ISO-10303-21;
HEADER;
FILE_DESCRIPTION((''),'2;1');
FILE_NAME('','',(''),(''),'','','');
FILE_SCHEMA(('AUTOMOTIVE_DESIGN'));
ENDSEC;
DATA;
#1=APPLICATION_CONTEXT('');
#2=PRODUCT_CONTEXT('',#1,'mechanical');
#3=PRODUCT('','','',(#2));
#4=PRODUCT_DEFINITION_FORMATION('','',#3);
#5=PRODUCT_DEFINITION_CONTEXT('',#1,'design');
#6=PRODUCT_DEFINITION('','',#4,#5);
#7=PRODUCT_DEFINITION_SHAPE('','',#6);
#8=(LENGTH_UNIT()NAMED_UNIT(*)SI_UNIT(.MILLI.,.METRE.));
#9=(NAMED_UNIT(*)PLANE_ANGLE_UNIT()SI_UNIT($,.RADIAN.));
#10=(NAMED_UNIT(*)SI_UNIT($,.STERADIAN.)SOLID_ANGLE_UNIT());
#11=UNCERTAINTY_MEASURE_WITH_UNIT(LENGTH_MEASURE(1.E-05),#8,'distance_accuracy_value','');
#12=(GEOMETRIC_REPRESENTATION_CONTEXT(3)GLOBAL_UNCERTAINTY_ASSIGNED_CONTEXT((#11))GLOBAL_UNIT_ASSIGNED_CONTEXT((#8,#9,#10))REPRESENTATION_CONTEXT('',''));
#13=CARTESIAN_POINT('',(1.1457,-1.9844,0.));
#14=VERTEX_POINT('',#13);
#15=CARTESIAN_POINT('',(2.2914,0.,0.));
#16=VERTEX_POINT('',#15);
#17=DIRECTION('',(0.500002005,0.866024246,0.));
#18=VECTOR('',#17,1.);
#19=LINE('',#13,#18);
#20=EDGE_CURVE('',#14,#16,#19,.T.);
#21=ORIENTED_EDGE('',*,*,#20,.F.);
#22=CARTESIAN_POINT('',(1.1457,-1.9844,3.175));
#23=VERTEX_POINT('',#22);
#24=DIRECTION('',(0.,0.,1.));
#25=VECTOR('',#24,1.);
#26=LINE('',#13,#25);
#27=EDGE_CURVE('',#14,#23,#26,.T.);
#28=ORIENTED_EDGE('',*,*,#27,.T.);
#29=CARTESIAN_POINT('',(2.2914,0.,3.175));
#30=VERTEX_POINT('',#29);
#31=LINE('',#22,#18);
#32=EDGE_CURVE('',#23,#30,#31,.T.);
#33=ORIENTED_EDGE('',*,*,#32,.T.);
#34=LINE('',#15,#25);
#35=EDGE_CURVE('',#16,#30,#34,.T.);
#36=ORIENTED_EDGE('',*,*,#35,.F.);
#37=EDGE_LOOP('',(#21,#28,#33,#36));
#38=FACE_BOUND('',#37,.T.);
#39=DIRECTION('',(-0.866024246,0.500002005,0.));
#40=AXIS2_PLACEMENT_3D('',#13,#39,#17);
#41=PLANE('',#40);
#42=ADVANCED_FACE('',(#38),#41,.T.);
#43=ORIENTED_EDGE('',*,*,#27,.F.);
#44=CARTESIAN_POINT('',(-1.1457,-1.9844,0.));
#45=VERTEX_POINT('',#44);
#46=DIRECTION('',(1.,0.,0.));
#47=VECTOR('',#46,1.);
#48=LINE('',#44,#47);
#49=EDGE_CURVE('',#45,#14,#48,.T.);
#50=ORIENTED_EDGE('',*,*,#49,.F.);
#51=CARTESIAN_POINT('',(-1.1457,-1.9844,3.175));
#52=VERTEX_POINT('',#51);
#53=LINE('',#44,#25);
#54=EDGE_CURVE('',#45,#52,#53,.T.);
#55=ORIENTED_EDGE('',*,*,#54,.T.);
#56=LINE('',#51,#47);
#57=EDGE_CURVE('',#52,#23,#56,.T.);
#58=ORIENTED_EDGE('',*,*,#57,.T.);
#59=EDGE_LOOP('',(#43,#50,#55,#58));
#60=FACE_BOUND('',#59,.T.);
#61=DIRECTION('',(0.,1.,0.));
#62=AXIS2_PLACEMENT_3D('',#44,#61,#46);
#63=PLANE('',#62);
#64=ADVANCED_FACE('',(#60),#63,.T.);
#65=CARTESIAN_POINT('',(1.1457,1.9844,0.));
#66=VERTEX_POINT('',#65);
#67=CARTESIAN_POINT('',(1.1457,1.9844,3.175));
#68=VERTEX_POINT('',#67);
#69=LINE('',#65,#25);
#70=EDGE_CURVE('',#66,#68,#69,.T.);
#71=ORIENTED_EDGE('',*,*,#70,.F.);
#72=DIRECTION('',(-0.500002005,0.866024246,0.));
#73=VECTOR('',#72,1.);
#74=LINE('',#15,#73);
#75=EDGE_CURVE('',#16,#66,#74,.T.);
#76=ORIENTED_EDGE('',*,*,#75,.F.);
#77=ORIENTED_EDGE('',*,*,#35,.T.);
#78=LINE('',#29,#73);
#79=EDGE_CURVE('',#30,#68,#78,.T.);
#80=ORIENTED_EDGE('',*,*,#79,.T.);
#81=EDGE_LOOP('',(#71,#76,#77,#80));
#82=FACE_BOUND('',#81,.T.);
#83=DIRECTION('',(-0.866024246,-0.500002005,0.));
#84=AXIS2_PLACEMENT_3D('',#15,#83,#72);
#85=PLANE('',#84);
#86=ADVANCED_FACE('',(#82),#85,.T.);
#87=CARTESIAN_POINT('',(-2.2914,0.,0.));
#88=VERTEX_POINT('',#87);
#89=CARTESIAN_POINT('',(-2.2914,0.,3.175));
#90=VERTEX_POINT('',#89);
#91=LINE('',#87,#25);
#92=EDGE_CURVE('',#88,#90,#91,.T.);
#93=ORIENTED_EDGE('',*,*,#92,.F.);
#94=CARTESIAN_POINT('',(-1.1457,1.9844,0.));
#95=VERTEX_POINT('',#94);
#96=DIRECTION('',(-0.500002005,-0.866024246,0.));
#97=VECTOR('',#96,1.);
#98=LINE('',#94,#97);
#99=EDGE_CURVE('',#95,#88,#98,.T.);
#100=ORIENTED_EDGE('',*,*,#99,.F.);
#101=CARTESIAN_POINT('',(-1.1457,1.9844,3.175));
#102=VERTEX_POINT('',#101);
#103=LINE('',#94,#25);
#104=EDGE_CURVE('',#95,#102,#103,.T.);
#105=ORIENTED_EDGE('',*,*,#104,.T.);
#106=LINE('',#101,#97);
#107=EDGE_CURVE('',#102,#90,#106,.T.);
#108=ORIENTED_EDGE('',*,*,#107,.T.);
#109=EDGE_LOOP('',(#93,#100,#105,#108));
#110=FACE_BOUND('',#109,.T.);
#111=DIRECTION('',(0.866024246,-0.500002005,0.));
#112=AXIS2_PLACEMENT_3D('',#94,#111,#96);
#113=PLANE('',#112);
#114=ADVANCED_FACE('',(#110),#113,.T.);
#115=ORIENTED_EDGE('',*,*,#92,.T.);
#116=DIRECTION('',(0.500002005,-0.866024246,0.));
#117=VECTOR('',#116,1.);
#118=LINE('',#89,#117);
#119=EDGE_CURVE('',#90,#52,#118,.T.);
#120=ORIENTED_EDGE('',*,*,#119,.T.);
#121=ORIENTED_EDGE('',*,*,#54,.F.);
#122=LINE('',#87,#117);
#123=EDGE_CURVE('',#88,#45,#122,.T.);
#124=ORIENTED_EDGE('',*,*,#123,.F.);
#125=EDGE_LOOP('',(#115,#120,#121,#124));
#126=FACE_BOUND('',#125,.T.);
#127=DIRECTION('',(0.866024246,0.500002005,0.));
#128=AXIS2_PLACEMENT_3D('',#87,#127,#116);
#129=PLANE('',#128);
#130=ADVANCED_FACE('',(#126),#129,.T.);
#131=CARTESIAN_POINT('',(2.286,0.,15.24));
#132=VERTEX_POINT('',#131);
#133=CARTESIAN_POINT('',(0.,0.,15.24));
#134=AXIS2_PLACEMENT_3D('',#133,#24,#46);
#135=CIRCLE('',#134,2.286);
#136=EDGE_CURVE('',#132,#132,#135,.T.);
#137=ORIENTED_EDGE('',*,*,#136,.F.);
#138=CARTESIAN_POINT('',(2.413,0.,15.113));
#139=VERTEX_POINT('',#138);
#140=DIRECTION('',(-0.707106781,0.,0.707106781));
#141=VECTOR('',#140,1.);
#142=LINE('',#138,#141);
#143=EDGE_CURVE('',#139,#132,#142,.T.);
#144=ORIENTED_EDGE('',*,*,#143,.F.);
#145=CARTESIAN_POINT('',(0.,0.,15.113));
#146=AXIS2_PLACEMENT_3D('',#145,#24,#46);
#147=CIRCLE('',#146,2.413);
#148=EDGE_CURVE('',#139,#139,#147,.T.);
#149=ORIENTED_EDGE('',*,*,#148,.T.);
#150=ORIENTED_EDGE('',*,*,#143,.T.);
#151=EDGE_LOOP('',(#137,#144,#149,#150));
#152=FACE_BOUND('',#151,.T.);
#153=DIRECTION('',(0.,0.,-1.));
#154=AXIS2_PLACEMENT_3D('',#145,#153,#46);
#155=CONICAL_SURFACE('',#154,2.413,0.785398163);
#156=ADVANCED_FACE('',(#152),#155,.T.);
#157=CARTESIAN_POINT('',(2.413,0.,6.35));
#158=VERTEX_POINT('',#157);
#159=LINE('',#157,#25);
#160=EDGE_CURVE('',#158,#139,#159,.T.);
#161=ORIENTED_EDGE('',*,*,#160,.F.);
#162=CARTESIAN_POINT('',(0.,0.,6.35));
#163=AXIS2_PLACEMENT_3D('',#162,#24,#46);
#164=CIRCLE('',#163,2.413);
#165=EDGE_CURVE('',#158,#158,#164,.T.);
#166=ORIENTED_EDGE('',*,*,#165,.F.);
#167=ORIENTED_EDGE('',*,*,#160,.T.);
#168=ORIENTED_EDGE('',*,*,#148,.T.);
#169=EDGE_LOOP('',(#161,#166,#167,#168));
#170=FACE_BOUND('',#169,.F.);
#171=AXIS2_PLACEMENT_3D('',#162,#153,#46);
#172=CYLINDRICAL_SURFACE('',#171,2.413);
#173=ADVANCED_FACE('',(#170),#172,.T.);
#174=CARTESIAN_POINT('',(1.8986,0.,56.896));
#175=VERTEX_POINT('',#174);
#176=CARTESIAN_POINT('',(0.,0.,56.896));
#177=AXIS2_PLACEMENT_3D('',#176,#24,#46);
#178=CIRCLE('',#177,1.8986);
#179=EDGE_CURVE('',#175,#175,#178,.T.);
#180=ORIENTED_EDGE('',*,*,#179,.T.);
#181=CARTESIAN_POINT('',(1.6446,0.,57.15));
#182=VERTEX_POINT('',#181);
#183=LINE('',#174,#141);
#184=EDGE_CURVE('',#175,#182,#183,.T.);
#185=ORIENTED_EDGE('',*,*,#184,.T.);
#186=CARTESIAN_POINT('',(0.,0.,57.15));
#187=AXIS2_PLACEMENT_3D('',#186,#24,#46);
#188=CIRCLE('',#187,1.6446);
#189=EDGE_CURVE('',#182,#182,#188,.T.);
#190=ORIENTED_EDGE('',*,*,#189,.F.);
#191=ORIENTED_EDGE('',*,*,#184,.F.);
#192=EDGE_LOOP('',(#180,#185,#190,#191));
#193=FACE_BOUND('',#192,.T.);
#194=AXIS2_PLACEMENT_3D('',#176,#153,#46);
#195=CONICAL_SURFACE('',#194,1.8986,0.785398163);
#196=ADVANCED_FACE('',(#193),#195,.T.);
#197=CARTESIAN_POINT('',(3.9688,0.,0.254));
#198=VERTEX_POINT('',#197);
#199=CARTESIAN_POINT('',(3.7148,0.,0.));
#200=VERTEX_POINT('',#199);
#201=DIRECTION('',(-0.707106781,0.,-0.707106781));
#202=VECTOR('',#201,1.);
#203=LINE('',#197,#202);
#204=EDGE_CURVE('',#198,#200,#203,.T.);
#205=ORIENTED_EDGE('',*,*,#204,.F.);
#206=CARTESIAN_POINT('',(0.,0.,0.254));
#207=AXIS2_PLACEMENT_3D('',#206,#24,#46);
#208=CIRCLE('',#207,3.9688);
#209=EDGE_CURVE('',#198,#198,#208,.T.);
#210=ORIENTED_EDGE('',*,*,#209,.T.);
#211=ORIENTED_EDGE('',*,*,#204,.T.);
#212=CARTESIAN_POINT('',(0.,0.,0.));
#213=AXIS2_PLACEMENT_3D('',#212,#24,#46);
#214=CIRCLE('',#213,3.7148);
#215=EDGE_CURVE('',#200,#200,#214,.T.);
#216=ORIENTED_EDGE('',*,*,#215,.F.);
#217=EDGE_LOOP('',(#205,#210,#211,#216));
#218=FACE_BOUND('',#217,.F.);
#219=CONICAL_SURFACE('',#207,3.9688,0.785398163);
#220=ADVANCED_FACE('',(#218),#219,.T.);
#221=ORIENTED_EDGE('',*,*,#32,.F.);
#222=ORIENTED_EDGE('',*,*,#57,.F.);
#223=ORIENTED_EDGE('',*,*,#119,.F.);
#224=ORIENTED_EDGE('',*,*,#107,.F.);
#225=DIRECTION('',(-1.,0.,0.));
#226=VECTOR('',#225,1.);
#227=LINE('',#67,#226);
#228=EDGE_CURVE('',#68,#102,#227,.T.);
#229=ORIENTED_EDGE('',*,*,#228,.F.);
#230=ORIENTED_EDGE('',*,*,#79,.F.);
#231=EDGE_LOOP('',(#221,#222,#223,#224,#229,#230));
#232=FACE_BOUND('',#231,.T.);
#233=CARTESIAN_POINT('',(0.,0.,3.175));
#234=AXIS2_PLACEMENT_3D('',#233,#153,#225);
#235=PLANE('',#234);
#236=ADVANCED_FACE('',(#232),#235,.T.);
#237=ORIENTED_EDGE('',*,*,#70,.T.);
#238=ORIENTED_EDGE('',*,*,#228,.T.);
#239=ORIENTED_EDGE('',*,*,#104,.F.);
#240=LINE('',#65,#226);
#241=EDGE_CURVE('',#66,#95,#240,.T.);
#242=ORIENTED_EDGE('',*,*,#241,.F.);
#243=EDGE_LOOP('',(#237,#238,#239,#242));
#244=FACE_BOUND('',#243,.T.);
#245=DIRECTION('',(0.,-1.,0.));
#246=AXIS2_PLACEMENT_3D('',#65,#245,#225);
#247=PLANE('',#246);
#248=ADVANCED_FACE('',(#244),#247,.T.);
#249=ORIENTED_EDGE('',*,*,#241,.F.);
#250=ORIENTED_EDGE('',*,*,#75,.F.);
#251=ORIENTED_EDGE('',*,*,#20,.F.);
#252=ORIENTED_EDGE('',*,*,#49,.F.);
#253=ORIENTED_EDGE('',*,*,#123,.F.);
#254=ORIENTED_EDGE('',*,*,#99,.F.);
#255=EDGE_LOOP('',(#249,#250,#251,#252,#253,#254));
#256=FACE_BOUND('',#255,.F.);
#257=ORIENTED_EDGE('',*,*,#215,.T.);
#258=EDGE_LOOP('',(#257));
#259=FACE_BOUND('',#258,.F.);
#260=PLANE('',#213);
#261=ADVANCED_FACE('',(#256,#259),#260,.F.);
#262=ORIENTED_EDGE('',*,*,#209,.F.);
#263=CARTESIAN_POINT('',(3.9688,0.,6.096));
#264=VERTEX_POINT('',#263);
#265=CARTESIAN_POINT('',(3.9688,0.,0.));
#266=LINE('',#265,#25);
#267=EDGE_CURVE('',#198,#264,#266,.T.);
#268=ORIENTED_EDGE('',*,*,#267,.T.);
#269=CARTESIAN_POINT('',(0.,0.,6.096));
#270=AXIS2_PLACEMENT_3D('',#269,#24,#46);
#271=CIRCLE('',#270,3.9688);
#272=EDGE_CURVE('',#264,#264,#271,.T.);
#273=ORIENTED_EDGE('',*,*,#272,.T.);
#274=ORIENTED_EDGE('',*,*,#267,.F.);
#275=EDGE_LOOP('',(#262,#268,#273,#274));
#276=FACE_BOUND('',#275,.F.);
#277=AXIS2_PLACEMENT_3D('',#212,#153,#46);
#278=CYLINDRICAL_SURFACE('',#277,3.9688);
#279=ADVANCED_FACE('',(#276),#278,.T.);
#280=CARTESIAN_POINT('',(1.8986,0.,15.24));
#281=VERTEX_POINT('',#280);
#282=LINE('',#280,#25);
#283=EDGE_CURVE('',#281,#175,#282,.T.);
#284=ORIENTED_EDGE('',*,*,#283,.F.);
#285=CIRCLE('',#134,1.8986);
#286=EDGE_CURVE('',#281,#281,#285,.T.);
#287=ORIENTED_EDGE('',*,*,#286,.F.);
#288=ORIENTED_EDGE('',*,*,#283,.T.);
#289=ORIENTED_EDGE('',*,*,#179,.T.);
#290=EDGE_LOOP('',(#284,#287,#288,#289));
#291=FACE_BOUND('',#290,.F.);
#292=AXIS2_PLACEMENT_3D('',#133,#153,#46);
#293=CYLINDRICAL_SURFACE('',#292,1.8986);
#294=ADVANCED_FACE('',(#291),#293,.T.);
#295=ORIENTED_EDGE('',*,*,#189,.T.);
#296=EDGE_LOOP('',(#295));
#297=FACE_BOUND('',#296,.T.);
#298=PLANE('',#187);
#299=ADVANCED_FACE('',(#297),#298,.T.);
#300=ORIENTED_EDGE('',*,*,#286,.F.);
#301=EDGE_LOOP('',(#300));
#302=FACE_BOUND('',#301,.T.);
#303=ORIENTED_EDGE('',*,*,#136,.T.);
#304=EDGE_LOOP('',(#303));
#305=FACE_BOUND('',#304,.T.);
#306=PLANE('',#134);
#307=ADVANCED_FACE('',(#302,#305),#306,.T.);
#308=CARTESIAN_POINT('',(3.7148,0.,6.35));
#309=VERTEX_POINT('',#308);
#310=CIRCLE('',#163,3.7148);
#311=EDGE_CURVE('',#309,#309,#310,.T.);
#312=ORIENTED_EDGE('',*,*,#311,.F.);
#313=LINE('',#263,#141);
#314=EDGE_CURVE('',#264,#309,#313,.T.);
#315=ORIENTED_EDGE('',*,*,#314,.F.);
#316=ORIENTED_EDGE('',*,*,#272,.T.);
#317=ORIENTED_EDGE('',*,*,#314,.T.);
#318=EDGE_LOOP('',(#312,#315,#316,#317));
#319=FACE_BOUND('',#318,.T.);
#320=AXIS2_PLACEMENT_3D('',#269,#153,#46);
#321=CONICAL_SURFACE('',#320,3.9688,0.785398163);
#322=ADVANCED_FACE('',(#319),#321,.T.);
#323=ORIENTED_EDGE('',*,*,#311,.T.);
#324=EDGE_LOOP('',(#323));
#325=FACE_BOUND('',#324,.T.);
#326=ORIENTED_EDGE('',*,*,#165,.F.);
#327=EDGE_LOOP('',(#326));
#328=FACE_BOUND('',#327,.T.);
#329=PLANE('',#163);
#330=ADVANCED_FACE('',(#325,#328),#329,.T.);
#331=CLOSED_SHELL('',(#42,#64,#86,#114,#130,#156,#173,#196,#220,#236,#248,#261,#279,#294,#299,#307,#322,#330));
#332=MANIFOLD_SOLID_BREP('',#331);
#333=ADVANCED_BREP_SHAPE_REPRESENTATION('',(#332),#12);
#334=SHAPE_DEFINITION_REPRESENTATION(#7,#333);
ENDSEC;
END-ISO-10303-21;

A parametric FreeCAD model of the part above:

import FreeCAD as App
import Part
import Sketcher
from FreeCAD import Vector
Q = App.Units.Quantity


def edges_at(feature, points):
    """Names of the edges that pass closest to the given points."""
    edges = feature.Shape.Edges
    near = lambda p: min(range(len(edges)), key=lambda i: edges[i].distToShape(Part.Vertex(*p))[0])
    return sorted({f"Edge{near(p) + 1}" for p in points})

doc = App.newDocument("Part")
body = doc.addObject("PartDesign::Body", "Body")

sketch1 = body.newObject("Sketcher::SketchObject", "Sketch")
sketch1.AttachmentSupport = (doc.getObject("XY_Plane"), [""])
sketch1.MapMode = "FlatFace"
sketch1.addGeometry(Part.Circle(Vector(0, 0, 0), Vector(0, 0, 1), 4), False)
sketch1.addConstraint([
    Sketcher.Constraint("Coincident", 0, 3, -1, 1),
    Sketcher.Constraint("Diameter", 0, Q("0.3125 in")),
])
pad1 = body.newObject("PartDesign::Pad", "Pad")
pad1.Profile = sketch1
pad1.Length = Q("0.25 in")

sketch2 = body.newObject("Sketcher::SketchObject", "Sketch001")
sketch2.AttachmentSupport = (doc.getObject("XY_Plane"), [""])
sketch2.MapMode = "FlatFace"
sketch2.AttachmentOffset = App.Placement(Vector(0, 0, 0.25 * 25.4), App.Rotation())
sketch2.addGeometry(Part.Circle(Vector(0, 0, 0), Vector(0, 0, 1), 2.4), False)
sketch2.addConstraint([
    Sketcher.Constraint("Coincident", 0, 3, -1, 1),
    Sketcher.Constraint("Diameter", 0, Q("0.19 in")),
])
pad2 = body.newObject("PartDesign::Pad", "Pad001")
pad2.Profile = sketch2
pad2.Length = Q("0.35 in")

sketch3 = body.newObject("Sketcher::SketchObject", "Sketch002")
sketch3.AttachmentSupport = (doc.getObject("XY_Plane"), [""])
sketch3.MapMode = "FlatFace"
sketch3.AttachmentOffset = App.Placement(Vector(0, 0, 0.6 * 25.4), App.Rotation())
sketch3.addGeometry(Part.Circle(Vector(0, 0, 0), Vector(0, 0, 1), 1.9), False)
sketch3.addConstraint([
    Sketcher.Constraint("Coincident", 0, 3, -1, 1),
    Sketcher.Constraint("Diameter", 0, Q("0.1495 in")),
])
pad3 = body.newObject("PartDesign::Pad", "Pad002")
pad3.Profile = sketch3
pad3.Length = Q("1.65 in")

sketch4 = body.newObject("Sketcher::SketchObject", "Sketch003")
sketch4.AttachmentSupport = (doc.getObject("XY_Plane"), [""])
sketch4.MapMode = "FlatFace"
sketch4.addGeometry([
    Part.LineSegment(Vector(1.1, 2, 0), Vector(2.3, 0, 0)),
    Part.LineSegment(Vector(2.3, 0, 0), Vector(1.1, -2, 0)),
    Part.LineSegment(Vector(1.1, -2, 0), Vector(-1.1, -2, 0)),
    Part.LineSegment(Vector(-1.1, -2, 0), Vector(-2.3, 0, 0)),
    Part.LineSegment(Vector(-2.3, 0, 0), Vector(-1.1, 2, 0)),
    Part.LineSegment(Vector(-1.1, 2, 0), Vector(1.1, 2, 0)),
], False)
sketch4.addConstraint([
    Sketcher.Constraint("Coincident", 0, 2, 1, 1),
    Sketcher.Constraint("Coincident", 1, 2, 2, 1),
    Sketcher.Constraint("Coincident", 2, 2, 3, 1),
    Sketcher.Constraint("Coincident", 3, 2, 4, 1),
    Sketcher.Constraint("Coincident", 4, 2, 5, 1),
    Sketcher.Constraint("Coincident", 5, 2, 0, 1),
    Sketcher.Constraint("Horizontal", 2),
    Sketcher.Constraint("Horizontal", 5),
    Sketcher.Constraint("Symmetric", 0, 2, 3, 2, -1, 1),
    Sketcher.Constraint("Symmetric", 1, 2, 4, 2, -1, 1),
    Sketcher.Constraint("PointOnObject", 0, 2, -1),
    Sketcher.Constraint("Parallel", 0, 3),
    Sketcher.Constraint("Vertical", 2, 2, 4, 2),
    Sketcher.Constraint("Angle", 0, Q("-59.9999 deg")),
    Sketcher.Constraint("DistanceY", 2, 2, 4, 2, Q("0.156252 in")),
    Sketcher.Constraint("DistanceX", 2, 2, 2, 1, Q("2.2914 mm")),
])
pocket1 = body.newObject("PartDesign::Pocket", "Pocket")
pocket1.Profile = sketch4
pocket1.Length = Q("0.125 in")
pocket1.Reversed = True
doc.recompute()

chamfer = body.newObject("PartDesign::Chamfer", "Chamfer")
chamfer.Base = (pocket1, edges_at(pocket1, [(-3.969, 0, 0), (-3.969, 0, 6.35), (-1.899, 0, 57.15)]))
chamfer.Size = Q("0.01 in")
doc.recompute()

chamfer2 = body.newObject("PartDesign::Chamfer", "Chamfer001")
chamfer2.Base = (chamfer, edges_at(chamfer, [(-2.413, 0, 15.24)]))
chamfer2.Size = Q("0.005 in")

doc.recompute()
